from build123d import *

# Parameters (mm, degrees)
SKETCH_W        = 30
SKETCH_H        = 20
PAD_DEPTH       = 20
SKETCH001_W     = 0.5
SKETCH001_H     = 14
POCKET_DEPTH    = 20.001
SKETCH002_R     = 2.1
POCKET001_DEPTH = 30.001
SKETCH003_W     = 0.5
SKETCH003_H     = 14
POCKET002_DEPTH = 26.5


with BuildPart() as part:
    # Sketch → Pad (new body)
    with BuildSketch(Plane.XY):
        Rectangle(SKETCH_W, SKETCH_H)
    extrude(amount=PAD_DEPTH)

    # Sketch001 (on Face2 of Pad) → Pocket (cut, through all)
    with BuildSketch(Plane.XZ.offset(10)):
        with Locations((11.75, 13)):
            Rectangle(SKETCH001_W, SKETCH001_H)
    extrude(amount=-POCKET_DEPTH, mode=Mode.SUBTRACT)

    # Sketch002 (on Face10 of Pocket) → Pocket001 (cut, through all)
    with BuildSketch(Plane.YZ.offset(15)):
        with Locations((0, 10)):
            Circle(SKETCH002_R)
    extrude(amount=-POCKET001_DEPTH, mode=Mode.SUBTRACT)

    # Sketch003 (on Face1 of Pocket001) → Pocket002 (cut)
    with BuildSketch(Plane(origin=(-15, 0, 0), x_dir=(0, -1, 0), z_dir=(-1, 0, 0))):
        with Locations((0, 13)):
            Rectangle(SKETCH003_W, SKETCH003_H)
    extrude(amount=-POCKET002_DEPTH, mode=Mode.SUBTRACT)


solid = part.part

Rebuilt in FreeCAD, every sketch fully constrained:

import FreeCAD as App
import Part
import Sketcher
from FreeCAD import Vector


def add_polygon(sketch, points):
    """Adds a closed chain of lines whose ends are joined by coincident constraints."""
    first, n = sketch.GeometryCount, len(points)
    for a, b in zip(points, points[1:] + points[:1]):
        sketch.addGeometry(Part.LineSegment(App.Vector(*a, 0), App.Vector(*b, 0)), False)
    for i in range(n):
        sketch.addConstraint(Sketcher.Constraint("Coincident", first + i, 2, first + (i + 1) % n, 1))

doc = App.newDocument("Part")
body = doc.addObject("PartDesign::Body", "Body")

# Sketch on XY plane
sketch1 = body.newObject("Sketcher::SketchObject", "Sketch")
sketch1.AttachmentSupport = (doc.getObject("XY_Plane"), [""])
sketch1.MapMode = "FlatFace"
add_polygon(sketch1, [(-15, 10), (-15, -10), (15, -10), (15, 10)])  # lines 0-3
sketch1.addConstraint(Sketcher.Constraint("Vertical", 0))
sketch1.addConstraint(Sketcher.Constraint("Horizontal", 1))
sketch1.addConstraint(Sketcher.Constraint("Vertical", 2))
sketch1.addConstraint(Sketcher.Constraint("Horizontal", 3))
sketch1.addConstraint(Sketcher.Constraint("Symmetric", 0, 2, 2, 2, -1, 1))
sketch1.addConstraint(Sketcher.Constraint("DistanceX", 1, 1, 1, 2, 30.0))
sketch1.addConstraint(Sketcher.Constraint("DistanceY", 0, 2, 0, 1, 20.0))
pad1 = body.newObject("PartDesign::Pad", "Pad")
pad1.Profile = sketch1
pad1.Length = 20

# Sketch on XZ plane
sketch2 = body.newObject("Sketcher::SketchObject", "Sketch001")
sketch2.AttachmentSupport = (doc.getObject("XZ_Plane"), [""])
sketch2.MapMode = "FlatFace"
sketch2.AttachmentOffset = App.Placement(Vector(0, 0, 10), App.Rotation())
add_polygon(sketch2, [(11.5, 20), (11.5, 6), (12, 6), (12, 20)])  # lines 0-3
sketch2.addConstraint(Sketcher.Constraint("Vertical", 0))
sketch2.addConstraint(Sketcher.Constraint("Horizontal", 1))
sketch2.addConstraint(Sketcher.Constraint("Vertical", 2))
sketch2.addConstraint(Sketcher.Constraint("Horizontal", 3))
sketch2.addConstraint(Sketcher.Constraint("DistanceY", 0, 2, 0, 1, 14.0))
sketch2.addConstraint(Sketcher.Constraint("DistanceX", 1, 1, 1, 2, 0.5))
sketch2.addConstraint(Sketcher.Constraint("DistanceY", -1, 1, 0, 2, 6.0))
sketch2.addConstraint(Sketcher.Constraint("DistanceX", -1, 1, 1, 2, 12.0))
pocket1 = body.newObject("PartDesign::Pocket", "Pocket")
pocket1.Profile = sketch2
pocket1.Type = "ThroughAll"

# Sketch on YZ plane
sketch3 = body.newObject("Sketcher::SketchObject", "Sketch002")
sketch3.AttachmentSupport = (doc.getObject("YZ_Plane"), [""])
sketch3.MapMode = "FlatFace"
sketch3.AttachmentOffset = App.Placement(Vector(0, 0, 15), App.Rotation())
sketch3.addGeometry(Part.Circle(Vector(0, 10, 0), Vector(0, 0, 1), 2.1), False)
sketch3.addConstraint(Sketcher.Constraint("PointOnObject", 0, 3, -2))
sketch3.addConstraint(Sketcher.Constraint("Diameter", 0, 4.2))
sketch3.addConstraint(Sketcher.Constraint("DistanceY", -1, 1, 0, 3, 10.0))
pocket2 = body.newObject("PartDesign::Pocket", "Pocket001")
pocket2.Profile = sketch3
pocket2.Type = "ThroughAll"

# Sketch on YZ plane
sketch4 = body.newObject("Sketcher::SketchObject", "Sketch003")
sketch4.AttachmentSupport = (doc.getObject("YZ_Plane"), [""])
sketch4.MapMode = "FlatFace"
sketch4.AttachmentOffset = App.Placement(Vector(0, 0, -15), App.Rotation())
add_polygon(sketch4, [(0.2, 20), (0.2, 6), (-0.2, 6), (-0.2, 20)])  # lines 0-3
sketch4.addConstraint(Sketcher.Constraint("Vertical", 0))
sketch4.addConstraint(Sketcher.Constraint("Horizontal", 1))
sketch4.addConstraint(Sketcher.Constraint("Vertical", 2))
sketch4.addConstraint(Sketcher.Constraint("Horizontal", 3))
sketch4.addConstraint(Sketcher.Constraint("DistanceY", 0, 2, 0, 1, 14.0))
sketch4.addConstraint(Sketcher.Constraint("DistanceX", 1, 2, 1, 1, 0.5))
sketch4.addConstraint(Sketcher.Constraint("DistanceY", -1, 1, 0, 2, 6.0))
sketch4.addConstraint(Sketcher.Constraint("DistanceX", -1, 1, 0, 2, 0.25))
pocket3 = body.newObject("PartDesign::Pocket", "Pocket002")
pocket3.Profile = sketch4
pocket3.Length = 26.5
pocket3.Reversed = True

doc.recompute()
